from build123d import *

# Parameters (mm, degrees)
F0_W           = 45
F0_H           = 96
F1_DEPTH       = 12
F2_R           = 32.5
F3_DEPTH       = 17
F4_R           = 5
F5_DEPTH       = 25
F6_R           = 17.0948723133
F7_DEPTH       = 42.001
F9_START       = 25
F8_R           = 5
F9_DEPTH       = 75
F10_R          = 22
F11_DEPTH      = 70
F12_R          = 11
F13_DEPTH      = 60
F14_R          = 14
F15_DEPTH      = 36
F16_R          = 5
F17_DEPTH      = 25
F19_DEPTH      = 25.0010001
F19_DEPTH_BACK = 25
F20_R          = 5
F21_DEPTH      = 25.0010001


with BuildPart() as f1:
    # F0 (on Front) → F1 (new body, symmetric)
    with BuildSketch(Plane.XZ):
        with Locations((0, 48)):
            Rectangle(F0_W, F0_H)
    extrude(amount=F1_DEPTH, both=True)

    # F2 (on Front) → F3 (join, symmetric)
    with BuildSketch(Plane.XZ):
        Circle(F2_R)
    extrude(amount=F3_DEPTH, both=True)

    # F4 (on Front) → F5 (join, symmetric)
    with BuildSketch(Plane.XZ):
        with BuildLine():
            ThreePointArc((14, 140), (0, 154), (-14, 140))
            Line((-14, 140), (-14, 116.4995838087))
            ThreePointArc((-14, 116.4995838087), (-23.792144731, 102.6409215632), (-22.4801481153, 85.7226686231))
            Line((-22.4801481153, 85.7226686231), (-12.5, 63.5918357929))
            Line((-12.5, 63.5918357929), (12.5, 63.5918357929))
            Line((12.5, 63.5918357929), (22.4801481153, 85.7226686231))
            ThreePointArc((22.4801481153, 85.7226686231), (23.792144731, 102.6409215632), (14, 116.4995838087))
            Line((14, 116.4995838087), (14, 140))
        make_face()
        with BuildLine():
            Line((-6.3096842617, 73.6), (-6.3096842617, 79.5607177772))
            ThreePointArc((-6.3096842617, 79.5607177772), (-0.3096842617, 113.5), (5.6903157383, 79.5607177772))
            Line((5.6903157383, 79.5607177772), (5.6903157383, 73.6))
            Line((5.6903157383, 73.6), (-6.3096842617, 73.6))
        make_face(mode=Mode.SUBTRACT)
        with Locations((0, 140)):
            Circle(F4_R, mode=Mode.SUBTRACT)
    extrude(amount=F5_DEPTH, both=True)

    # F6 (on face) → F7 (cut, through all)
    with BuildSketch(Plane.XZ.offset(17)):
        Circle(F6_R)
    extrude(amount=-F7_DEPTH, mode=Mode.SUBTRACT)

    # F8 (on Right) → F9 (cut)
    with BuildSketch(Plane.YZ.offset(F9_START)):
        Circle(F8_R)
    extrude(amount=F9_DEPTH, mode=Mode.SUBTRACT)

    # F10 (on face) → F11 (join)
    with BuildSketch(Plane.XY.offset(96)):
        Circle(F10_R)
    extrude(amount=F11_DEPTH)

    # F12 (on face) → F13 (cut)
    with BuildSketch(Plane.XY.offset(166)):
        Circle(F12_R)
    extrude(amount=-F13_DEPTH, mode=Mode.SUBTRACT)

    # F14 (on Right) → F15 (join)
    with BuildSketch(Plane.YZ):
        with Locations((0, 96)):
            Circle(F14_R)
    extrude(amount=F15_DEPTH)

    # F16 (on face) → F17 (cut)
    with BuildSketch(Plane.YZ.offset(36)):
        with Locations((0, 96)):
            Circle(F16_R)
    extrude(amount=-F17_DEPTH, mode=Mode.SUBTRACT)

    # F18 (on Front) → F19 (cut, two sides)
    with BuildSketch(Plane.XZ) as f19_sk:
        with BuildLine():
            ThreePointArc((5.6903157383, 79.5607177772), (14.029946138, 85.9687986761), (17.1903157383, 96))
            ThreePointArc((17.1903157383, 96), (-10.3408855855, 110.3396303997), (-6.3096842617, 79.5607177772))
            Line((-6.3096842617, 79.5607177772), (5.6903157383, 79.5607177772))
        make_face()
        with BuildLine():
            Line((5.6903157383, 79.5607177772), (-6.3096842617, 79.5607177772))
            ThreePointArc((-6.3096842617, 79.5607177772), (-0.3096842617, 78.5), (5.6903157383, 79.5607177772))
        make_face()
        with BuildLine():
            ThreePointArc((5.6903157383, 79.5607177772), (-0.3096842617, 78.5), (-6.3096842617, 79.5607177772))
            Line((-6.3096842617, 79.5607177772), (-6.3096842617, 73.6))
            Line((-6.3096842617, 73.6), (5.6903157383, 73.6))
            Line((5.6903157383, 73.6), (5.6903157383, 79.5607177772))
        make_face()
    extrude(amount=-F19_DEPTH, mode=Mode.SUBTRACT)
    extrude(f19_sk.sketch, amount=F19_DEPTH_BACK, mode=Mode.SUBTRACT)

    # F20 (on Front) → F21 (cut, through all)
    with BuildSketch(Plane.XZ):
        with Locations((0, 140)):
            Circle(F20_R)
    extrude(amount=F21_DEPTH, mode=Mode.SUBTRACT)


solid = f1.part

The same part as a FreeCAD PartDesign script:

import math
import FreeCAD as App
import Part
import Sketcher

V = App.Vector


def add_polygon(sketch, points):
    """Adds a closed chain of lines whose ends are joined by coincident constraints."""
    first, n = sketch.GeometryCount, len(points)
    for a, b in zip(points, points[1:] + points[:1]):
        sketch.addGeometry(Part.LineSegment(App.Vector(*a, 0), App.Vector(*b, 0)), False)
    for i in range(n):
        sketch.addConstraint(Sketcher.Constraint("Coincident", first + i, 2, first + (i + 1) % n, 1))

doc = App.newDocument("Part")
body = doc.addObject("PartDesign::Body", "Body")

# Sketch on XZ plane
sketch1 = body.newObject("Sketcher::SketchObject", "Sketch")
sketch1.AttachmentSupport = (doc.getObject("XZ_Plane"), [""])
sketch1.MapMode = "FlatFace"
add_polygon(sketch1, [(-22, 96), (-22, 0), (22, 0), (22, 96)])  # lines 0-3
sketch1.addConstraint([
    Sketcher.Constraint("Vertical", 0),
    Sketcher.Constraint("Horizontal", 1),
    Sketcher.Constraint("Vertical", 2),
    Sketcher.Constraint("Horizontal", 3),
    Sketcher.Constraint("Symmetric", 0, 2, 1, 2, -1, 1),
    Sketcher.Constraint("DistanceX", 1, 1, 1, 2, 45.0),
    Sketcher.Constraint("DistanceY", 0, 2, 0, 1, 96.0),
])
pad1 = body.newObject("PartDesign::Pad", "Pad")
pad1.Profile = sketch1
pad1.Length = 24
pad1.Midplane = True

# Sketch on XZ plane
sketch2 = body.newObject("Sketcher::SketchObject", "Sketch001")
sketch2.AttachmentSupport = (doc.getObject("XZ_Plane"), [""])
sketch2.MapMode = "FlatFace"
sketch2.addGeometry(Part.Circle(V(0, 0, 0), V(0, 0, 1), 32), False)
sketch2.addConstraint([
    Sketcher.Constraint("Coincident", 0, 3, -1, 1),
    Sketcher.Constraint("Diameter", 0, 65.0),
])
pad2 = body.newObject("PartDesign::Pad", "Pad001")
pad2.Profile = sketch2
pad2.Length = 34
pad2.Midplane = True

# Sketch on XZ plane
sketch3 = body.newObject("Sketcher::SketchObject", "Sketch002")
sketch3.AttachmentSupport = (doc.getObject("XZ_Plane"), [""])
sketch3.MapMode = "FlatFace"
sketch3.addGeometry([
    Part.ArcOfCircle(Part.Circle(V(0, 140, 0), V(0, 0, 1), 14), math.radians(0), math.radians(180)),  # 0
    Part.LineSegment(V(-14, 140, 0), V(-14, 116.499584, 0)),  # 1
    Part.ArcOfCircle(Part.Circle(V(0.309684, 96, 0), V(0, 0, 1), 25), math.radians(124.916873), math.radians(204.27353)),  # 2
    Part.LineSegment(V(-22.480148, 85.722669, 0), V(-12.5, 63.591836, 0)),  # 3
    Part.LineSegment(V(-12.5, 63.591836, 0), V(12.5, 63.591836, 0)),  # 4
    Part.LineSegment(V(12.5, 63.591836, 0), V(22.480148, 85.722669, 0)),  # 5
    Part.ArcOfCircle(Part.Circle(V(-0.309684, 96, 0), V(0, 0, 1), 25), math.radians(-24.27353), math.radians(55.083127)),  # 6
    Part.LineSegment(V(14, 116.499584, 0), V(14, 140, 0)),  # 7
    Part.LineSegment(V(5.690316, 73.6, 0), V(-6.309684, 73.6, 0)),  # 8
    Part.LineSegment(V(-6.309684, 73.6, 0), V(-6.309684, 79.560718, 0)),  # 9
    Part.ArcOfCircle(Part.Circle(V(-0.309684, 96, 0), V(0, 0, 1), 17.5), math.radians(-69.948957), math.radians(249.948957)),  # 10
    Part.LineSegment(V(5.690316, 79.560718, 0), V(5.690316, 73.6, 0)),  # 11
    Part.Circle(V(0, 140, 0), V(0, 0, 1), 5),  # 12
], False)
sketch3.addConstraint([
    Sketcher.Constraint("Tangent", 0, 2, 1, 1),
    Sketcher.Constraint("Coincident", 1, 2, 2, 1),
    Sketcher.Constraint("Tangent", 2, 2, 3, 1),
    Sketcher.Constraint("Coincident", 3, 2, 4, 1),
    Sketcher.Constraint("Coincident", 4, 2, 5, 1),
    Sketcher.Constraint("Tangent", 5, 2, 6, 1),
    Sketcher.Constraint("Coincident", 6, 2, 7, 1),
    Sketcher.Constraint("Tangent", 7, 2, 0, 1),
    Sketcher.Constraint("Coincident", 8, 2, 9, 1),
    Sketcher.Constraint("Coincident", 9, 2, 10, 2),
    Sketcher.Constraint("Coincident", 10, 1, 11, 1),
    Sketcher.Constraint("Coincident", 11, 2, 8, 1),
    Sketcher.Constraint("Vertical", 1),
    Sketcher.Constraint("Horizontal", 4),
    Sketcher.Constraint("Vertical", 7),
    Sketcher.Constraint("Horizontal", 8),
    Sketcher.Constraint("Vertical", 9),
    Sketcher.Constraint("Vertical", 11),
    Sketcher.Constraint("Coincident", 10, 3, 6, 3),
    Sketcher.Constraint("Coincident", 12, 3, 0, 3),
    Sketcher.Constraint("Equal", 2, 6),
    Sketcher.Constraint("Symmetric", 2, 3, 6, 3, -2),
    Sketcher.Constraint("PointOnObject", 0, 3, -2),
    Sketcher.Constraint("Horizontal", 2, 2, 5, 2),
    Sketcher.Constraint("Horizontal", 9, 2, 10, 1),
    Sketcher.Constraint("Diameter", 12, 10.0),
    Sketcher.Constraint("Radius", 0, 14.0),
    Sketcher.Constraint("Radius", 2, 25.0),
    Sketcher.Constraint("Radius", 10, 17.5),
    Sketcher.Constraint("DistanceX", 4, 1, 4, 2, 25.0),
    Sketcher.Constraint("DistanceX", 8, 2, 8, 1, 12.0),
    Sketcher.Constraint("DistanceY", -1, 1, 0, 3, 140.0),
    Sketcher.Constraint("DistanceY", -1, 1, 2, 3, 96.0),
    Sketcher.Constraint("DistanceY", -1, 1, 8, 2, 73.6),
    Sketcher.Constraint("Distance", 3, 24.27709),
    Sketcher.Constraint("DistanceY", 1, 2, 1, 1, 23.500416),
])
pad3 = body.newObject("PartDesign::Pad", "Pad002")
pad3.Profile = sketch3
pad3.Length = 50
pad3.Midplane = True

# Sketch on XZ plane
sketch4 = body.newObject("Sketcher::SketchObject", "Sketch003")
sketch4.AttachmentSupport = (doc.getObject("XZ_Plane"), [""])
sketch4.MapMode = "FlatFace"
sketch4.AttachmentOffset = App.Placement(V(0, 0, 17), App.Rotation())
sketch4.addGeometry(Part.Circle(V(0, 0, 0), V(0, 0, 1), 17), False)
sketch4.addConstraint([
    Sketcher.Constraint("Coincident", 0, 3, -1, 1),
    Sketcher.Constraint("Diameter", 0, 34.189745),
])
pocket1 = body.newObject("PartDesign::Pocket", "Pocket")
pocket1.Profile = sketch4
pocket1.Type = "ThroughAll"

# Sketch on YZ plane
sketch5 = body.newObject("Sketcher::SketchObject", "Sketch004")
sketch5.AttachmentSupport = (doc.getObject("YZ_Plane"), [""])
sketch5.MapMode = "FlatFace"
sketch5.AttachmentOffset = App.Placement(V(0, 0, 25), App.Rotation())
sketch5.addGeometry(Part.Circle(V(0, 0, 0), V(0, 0, 1), 5), False)
sketch5.addConstraint([
    Sketcher.Constraint("Coincident", 0, 3, -1, 1),
    Sketcher.Constraint("Diameter", 0, 10.0),
])
pocket2 = body.newObject("PartDesign::Pocket", "Pocket001")
pocket2.Profile = sketch5
pocket2.Length = 75
pocket2.Reversed = True

# Sketch on XY plane
sketch6 = body.newObject("Sketcher::SketchObject", "Sketch005")
sketch6.AttachmentSupport = (doc.getObject("XY_Plane"), [""])
sketch6.MapMode = "FlatFace"
sketch6.AttachmentOffset = App.Placement(V(0, 0, 96), App.Rotation())
sketch6.addGeometry(Part.Circle(V(0, 0, 0), V(0, 0, 1), 22), False)
sketch6.addConstraint([
    Sketcher.Constraint("Coincident", 0, 3, -1, 1),
    Sketcher.Constraint("Diameter", 0, 44.0),
])
pad4 = body.newObject("PartDesign::Pad", "Pad003")
pad4.Profile = sketch6
pad4.Length = 70

# Sketch on XY plane
sketch7 = body.newObject("Sketcher::SketchObject", "Sketch006")
sketch7.AttachmentSupport = (doc.getObject("XY_Plane"), [""])
sketch7.MapMode = "FlatFace"
sketch7.AttachmentOffset = App.Placement(V(0, 0, 166), App.Rotation())
sketch7.addGeometry(Part.Circle(V(0, 0, 0), V(0, 0, 1), 11), False)
sketch7.addConstraint([
    Sketcher.Constraint("Coincident", 0, 3, -1, 1),
    Sketcher.Constraint("Diameter", 0, 22.0),
])
pocket3 = body.newObject("PartDesign::Pocket", "Pocket002")
pocket3.Profile = sketch7
pocket3.Length = 60

# Sketch on YZ plane
sketch8 = body.newObject("Sketcher::SketchObject", "Sketch007")
sketch8.AttachmentSupport = (doc.getObject("YZ_Plane"), [""])
sketch8.MapMode = "FlatFace"
sketch8.addGeometry(Part.Circle(V(0, 96, 0), V(0, 0, 1), 14), False)
sketch8.addConstraint([
    Sketcher.Constraint("PointOnObject", 0, 3, -2),
    Sketcher.Constraint("Diameter", 0, 28.0),
    Sketcher.Constraint("DistanceY", -1, 1, 0, 3, 96.0),
])
pad5 = body.newObject("PartDesign::Pad", "Pad004")
pad5.Profile = sketch8
pad5.Length = 36

# Sketch on YZ plane
sketch9 = body.newObject("Sketcher::SketchObject", "Sketch008")
sketch9.AttachmentSupport = (doc.getObject("YZ_Plane"), [""])
sketch9.MapMode = "FlatFace"
sketch9.AttachmentOffset = App.Placement(V(0, 0, 36), App.Rotation())
sketch9.addGeometry(Part.Circle(V(0, 96, 0), V(0, 0, 1), 5), False)
sketch9.addConstraint([
    Sketcher.Constraint("PointOnObject", 0, 3, -2),
    Sketcher.Constraint("Diameter", 0, 10.0),
    Sketcher.Constraint("DistanceY", -1, 1, 0, 3, 96.0),
])
pocket4 = body.newObject("PartDesign::Pocket", "Pocket003")
pocket4.Profile = sketch9
pocket4.Length = 25

# Sketch on XZ plane
sketch10 = body.newObject("Sketcher::SketchObject", "Sketch009")
sketch10.AttachmentSupport = (doc.getObject("XZ_Plane"), [""])
sketch10.MapMode = "FlatFace"
sketch10.addGeometry([
    Part.ArcOfCircle(Part.Circle(V(0, 96, 0), V(0, 0, 1), 18), math.radians(-70), math.radians(250)),
    Part.LineSegment(V(-6, 80, 0), V(-6, 74, 0)),
    Part.LineSegment(V(-6, 74, 0), V(6, 74, 0)),
    Part.LineSegment(V(6, 74, 0), V(6, 80, 0)),
], False)
sketch10.addConstraint([
    Sketcher.Constraint("Coincident", 0, 2, 1, 1),
    Sketcher.Constraint("Coincident", 1, 2, 2, 1),
    Sketcher.Constraint("Coincident", 2, 2, 3, 1),
    Sketcher.Constraint("Coincident", 3, 2, 0, 1),
    Sketcher.Constraint("Vertical", 1),
    Sketcher.Constraint("Horizontal", 2),
    Sketcher.Constraint("Vertical", 3),
    Sketcher.Constraint("Horizontal", 0, 2, 3, 2),
    Sketcher.Constraint("Radius", 0, 17.5),
    Sketcher.Constraint("DistanceX", 2, 1, 2, 2, 12.0),
    Sketcher.Constraint("DistanceY", -1, 1, 0, 3, 96.0),
    Sketcher.Constraint("DistanceY", -1, 1, 1, 2, 73.6),
    Sketcher.Constraint("DistanceX", 0, 3, -1, 1, 0.309684),
])
pocket5 = body.newObject("PartDesign::Pocket", "Pocket004")
pocket5.Profile = sketch10
pocket5.Type = "ThroughAll"
pocket5.Midplane = True

# Sketch on XZ plane
sketch11 = body.newObject("Sketcher::SketchObject", "Sketch010")
sketch11.AttachmentSupport = (doc.getObject("XZ_Plane"), [""])
sketch11.MapMode = "FlatFace"
sketch11.addGeometry(Part.Circle(V(0, 140, 0), V(0, 0, 1), 5), False)
sketch11.addConstraint([
    Sketcher.Constraint("PointOnObject", 0, 3, -2),
    Sketcher.Constraint("Diameter", 0, 10.0),
    Sketcher.Constraint("DistanceY", -1, 1, 0, 3, 140.0),
])
pocket6 = body.newObject("PartDesign::Pocket", "Pocket005")
pocket6.Profile = sketch11
pocket6.Type = "ThroughAll"
pocket6.Reversed = True

doc.recompute()
